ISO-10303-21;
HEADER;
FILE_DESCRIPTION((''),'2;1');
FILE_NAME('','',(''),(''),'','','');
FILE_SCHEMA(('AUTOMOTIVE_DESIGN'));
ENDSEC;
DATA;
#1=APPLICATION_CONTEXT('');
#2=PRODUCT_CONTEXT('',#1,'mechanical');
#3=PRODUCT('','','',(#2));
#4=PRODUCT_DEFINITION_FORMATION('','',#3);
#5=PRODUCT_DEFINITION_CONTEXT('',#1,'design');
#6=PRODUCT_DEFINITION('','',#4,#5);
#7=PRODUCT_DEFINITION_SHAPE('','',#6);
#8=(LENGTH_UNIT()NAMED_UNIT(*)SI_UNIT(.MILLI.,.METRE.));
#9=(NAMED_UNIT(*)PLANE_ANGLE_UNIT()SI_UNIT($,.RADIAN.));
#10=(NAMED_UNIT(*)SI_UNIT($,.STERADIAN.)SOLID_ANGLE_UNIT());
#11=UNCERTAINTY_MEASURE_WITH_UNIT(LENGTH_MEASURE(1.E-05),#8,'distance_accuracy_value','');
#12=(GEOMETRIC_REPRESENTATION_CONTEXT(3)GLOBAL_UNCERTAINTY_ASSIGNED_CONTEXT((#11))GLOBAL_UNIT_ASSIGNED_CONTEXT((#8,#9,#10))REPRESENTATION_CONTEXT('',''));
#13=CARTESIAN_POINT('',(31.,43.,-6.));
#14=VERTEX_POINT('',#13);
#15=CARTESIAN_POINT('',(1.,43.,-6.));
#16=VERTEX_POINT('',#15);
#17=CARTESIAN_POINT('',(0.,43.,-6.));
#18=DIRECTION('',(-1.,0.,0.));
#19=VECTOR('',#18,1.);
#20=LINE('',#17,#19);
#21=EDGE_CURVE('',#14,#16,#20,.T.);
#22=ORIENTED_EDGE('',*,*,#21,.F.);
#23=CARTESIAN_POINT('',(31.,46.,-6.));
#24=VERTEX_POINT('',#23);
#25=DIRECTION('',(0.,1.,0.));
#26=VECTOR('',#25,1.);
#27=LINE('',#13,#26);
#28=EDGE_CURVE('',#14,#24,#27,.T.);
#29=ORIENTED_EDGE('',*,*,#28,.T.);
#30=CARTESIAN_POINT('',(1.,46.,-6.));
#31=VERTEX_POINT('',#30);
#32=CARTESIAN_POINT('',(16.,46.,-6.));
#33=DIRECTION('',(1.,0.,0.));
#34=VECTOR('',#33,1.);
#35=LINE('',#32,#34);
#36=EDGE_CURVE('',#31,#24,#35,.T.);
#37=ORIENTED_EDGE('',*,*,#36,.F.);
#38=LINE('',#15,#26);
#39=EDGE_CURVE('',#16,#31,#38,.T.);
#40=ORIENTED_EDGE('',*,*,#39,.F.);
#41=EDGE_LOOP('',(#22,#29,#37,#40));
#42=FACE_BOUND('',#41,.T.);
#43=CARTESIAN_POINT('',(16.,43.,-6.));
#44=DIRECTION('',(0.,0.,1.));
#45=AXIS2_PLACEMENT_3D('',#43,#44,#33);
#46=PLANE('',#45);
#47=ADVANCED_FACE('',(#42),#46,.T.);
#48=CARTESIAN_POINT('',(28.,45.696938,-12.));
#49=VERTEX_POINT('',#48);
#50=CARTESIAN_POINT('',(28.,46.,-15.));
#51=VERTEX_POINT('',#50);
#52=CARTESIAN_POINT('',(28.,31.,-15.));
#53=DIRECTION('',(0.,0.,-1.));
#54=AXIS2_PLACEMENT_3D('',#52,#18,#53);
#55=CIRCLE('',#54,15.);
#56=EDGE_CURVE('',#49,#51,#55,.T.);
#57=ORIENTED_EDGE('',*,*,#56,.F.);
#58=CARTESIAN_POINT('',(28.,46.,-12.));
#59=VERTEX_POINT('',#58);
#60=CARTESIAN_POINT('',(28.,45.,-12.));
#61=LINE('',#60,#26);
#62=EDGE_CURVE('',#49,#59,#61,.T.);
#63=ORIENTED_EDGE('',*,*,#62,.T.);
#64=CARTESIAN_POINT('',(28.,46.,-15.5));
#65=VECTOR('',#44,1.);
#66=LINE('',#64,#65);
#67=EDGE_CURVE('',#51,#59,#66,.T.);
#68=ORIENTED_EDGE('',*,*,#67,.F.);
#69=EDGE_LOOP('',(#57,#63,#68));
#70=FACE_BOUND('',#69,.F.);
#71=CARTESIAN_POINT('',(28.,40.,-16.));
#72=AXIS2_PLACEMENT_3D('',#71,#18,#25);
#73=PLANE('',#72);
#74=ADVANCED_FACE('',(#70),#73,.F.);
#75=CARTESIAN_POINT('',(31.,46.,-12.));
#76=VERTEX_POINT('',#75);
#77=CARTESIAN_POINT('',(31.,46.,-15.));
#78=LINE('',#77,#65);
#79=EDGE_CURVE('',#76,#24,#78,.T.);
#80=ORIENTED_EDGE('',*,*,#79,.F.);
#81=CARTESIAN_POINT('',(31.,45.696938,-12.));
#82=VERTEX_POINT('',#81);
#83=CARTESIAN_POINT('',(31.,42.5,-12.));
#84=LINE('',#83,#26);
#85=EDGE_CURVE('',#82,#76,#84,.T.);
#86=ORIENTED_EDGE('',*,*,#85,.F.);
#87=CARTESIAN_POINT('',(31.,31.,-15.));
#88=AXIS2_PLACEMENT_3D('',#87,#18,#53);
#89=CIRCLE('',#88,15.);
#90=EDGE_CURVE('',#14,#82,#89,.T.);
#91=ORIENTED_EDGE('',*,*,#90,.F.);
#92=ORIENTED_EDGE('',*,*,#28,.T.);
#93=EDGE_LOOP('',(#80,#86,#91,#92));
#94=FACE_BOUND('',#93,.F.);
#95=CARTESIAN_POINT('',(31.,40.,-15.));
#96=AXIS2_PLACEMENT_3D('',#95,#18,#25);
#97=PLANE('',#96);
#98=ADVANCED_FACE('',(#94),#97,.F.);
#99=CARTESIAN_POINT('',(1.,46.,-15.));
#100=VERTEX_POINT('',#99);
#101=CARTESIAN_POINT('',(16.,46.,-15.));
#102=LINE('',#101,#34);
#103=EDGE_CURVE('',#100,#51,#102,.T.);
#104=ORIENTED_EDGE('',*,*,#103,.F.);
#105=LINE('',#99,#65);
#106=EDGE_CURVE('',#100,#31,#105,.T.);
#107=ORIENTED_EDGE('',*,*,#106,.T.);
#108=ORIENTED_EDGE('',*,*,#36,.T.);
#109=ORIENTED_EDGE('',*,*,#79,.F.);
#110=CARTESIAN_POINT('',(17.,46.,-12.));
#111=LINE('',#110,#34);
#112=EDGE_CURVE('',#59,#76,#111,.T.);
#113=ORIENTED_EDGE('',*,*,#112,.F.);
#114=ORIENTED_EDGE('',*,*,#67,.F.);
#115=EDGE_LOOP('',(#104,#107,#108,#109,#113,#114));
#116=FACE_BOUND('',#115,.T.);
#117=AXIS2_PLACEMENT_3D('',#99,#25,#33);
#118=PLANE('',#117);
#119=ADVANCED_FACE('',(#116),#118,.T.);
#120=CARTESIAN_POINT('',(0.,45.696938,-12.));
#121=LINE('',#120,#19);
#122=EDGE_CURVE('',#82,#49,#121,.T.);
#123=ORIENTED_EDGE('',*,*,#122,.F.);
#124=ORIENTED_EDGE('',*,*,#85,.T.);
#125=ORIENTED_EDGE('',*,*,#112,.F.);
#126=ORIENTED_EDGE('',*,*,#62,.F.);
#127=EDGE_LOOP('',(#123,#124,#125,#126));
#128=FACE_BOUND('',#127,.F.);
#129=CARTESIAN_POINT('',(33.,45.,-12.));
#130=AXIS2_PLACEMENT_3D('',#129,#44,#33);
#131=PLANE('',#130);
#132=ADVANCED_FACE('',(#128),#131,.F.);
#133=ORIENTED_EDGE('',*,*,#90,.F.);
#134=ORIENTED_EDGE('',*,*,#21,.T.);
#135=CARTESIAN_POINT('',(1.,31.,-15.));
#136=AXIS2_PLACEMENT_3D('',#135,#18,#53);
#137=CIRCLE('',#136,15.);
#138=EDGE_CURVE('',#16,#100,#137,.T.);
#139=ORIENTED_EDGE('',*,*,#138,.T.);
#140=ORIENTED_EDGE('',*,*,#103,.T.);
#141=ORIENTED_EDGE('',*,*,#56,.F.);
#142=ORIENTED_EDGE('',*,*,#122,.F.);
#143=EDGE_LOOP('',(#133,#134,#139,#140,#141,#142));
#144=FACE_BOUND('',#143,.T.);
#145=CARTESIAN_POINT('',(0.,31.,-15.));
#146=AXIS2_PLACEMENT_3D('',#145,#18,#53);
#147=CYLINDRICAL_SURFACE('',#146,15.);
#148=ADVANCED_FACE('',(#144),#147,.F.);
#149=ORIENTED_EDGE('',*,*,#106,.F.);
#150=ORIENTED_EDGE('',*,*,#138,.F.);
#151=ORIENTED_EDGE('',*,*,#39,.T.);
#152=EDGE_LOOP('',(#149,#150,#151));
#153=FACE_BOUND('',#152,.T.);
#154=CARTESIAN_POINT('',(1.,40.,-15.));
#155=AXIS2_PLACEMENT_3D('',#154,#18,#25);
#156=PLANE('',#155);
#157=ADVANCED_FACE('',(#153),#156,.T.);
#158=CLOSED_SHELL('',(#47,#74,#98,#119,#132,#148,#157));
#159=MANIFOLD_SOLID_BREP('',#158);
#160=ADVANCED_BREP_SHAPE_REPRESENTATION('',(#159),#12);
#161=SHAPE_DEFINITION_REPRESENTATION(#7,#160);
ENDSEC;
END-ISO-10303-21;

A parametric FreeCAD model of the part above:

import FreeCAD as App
import Part
import Sketcher
from FreeCAD import Vector


def add_polygon(sketch, points):
    """Adds a closed chain of lines whose ends are joined by coincident constraints."""
    first, n = sketch.GeometryCount, len(points)
    for a, b in zip(points, points[1:] + points[:1]):
        sketch.addGeometry(Part.LineSegment(App.Vector(*a, 0), App.Vector(*b, 0)), False)
    for i in range(n):
        sketch.addConstraint(Sketcher.Constraint("Coincident", first + i, 2, first + (i + 1) % n, 1))

doc = App.newDocument("Part")
body = doc.addObject("PartDesign::Body", "Body")

# Sketch on XY plane
sketch1 = body.newObject("Sketcher::SketchObject", "Sketch")
sketch1.AttachmentSupport = (doc.getObject("XY_Plane"), [""])
sketch1.MapMode = "FlatFace"
sketch1.AttachmentOffset = App.Placement(Vector(0, 0, -16), App.Rotation())
add_polygon(sketch1, [(28, 50), (28, 40), (38, 40), (38, 50)])  # lines 0-3
sketch1.addConstraint([
    Sketcher.Constraint("Vertical", 0),
    Sketcher.Constraint("Horizontal", 1),
    Sketcher.Constraint("Vertical", 2),
    Sketcher.Constraint("Horizontal", 3),
    Sketcher.Constraint("Equal", 3, 0),
    Sketcher.Constraint("DistanceX", 1, 1, 1, 2, 10.0),
    Sketcher.Constraint("DistanceX", -1, 1, 0, 2, 28.0),
    Sketcher.Constraint("DistanceY", -1, 1, 0, 2, 40.0),
])
pad1 = body.newObject("PartDesign::Pad", "Pad")
pad1.Profile = sketch1
pad1.Length = 4
body2 = doc.addObject("PartDesign::Body", "Body001")

# Sketch on YZ plane
sketch2 = body2.newObject("Sketcher::SketchObject", "Sketch001")
sketch2.AttachmentSupport = (doc.getObject("YZ_Plane001"), [""])
sketch2.MapMode = "FlatFace"
sketch2.addGeometry(Part.Circle(Vector(31, -15, 0), Vector(0, 0, 1), 15), False)
sketch2.addConstraint([
    Sketcher.Constraint("Diameter", 0, 30.0),
    Sketcher.Constraint("DistanceX", -1, 1, 0, 3, 31.0),
    Sketcher.Constraint("DistanceY", 0, 3, -1, 1, 15.0),
])
pad2 = body2.newObject("PartDesign::Pad", "Pad001")
pad2.Profile = sketch2
pad2.Length = 32
body3 = doc.addObject("PartDesign::Body", "Body002")

# Sketch on XY plane
sketch3 = body3.newObject("Sketcher::SketchObject", "Sketch002")
sketch3.AttachmentSupport = (doc.getObject("XY_Plane002"), [""])
sketch3.MapMode = "FlatFace"
sketch3.AttachmentOffset = App.Placement(Vector(0, 0, -15), App.Rotation())
add_polygon(sketch3, [(1, 46), (1, 40), (31, 40), (31, 46)])  # lines 0-3
sketch3.addConstraint([
    Sketcher.Constraint("Vertical", 0),
    Sketcher.Constraint("Horizontal", 1),
    Sketcher.Constraint("Vertical", 2),
    Sketcher.Constraint("Horizontal", 3),
    Sketcher.Constraint("DistanceX", 1, 1, 1, 2, 30.0),
    Sketcher.Constraint("DistanceY", 0, 2, 0, 1, 6.0),
    Sketcher.Constraint("DistanceX", -1, 1, 0, 2, 1.0),
    Sketcher.Constraint("DistanceY", -1, 1, 0, 2, 40.0),
])
pad3 = body3.newObject("PartDesign::Pad", "Pad002")
pad3.Profile = sketch3
pad3.Length = 9
doc.recompute()

boolean = body3.newObject("PartDesign::Boolean", "Boolean")
boolean.Type = "Cut"
boolean.addObjects([body2])
doc.recompute()

boolean2 = body3.newObject("PartDesign::Boolean", "Boolean001")
boolean2.Type = "Cut"
boolean2.addObjects([body])

doc.recompute()
